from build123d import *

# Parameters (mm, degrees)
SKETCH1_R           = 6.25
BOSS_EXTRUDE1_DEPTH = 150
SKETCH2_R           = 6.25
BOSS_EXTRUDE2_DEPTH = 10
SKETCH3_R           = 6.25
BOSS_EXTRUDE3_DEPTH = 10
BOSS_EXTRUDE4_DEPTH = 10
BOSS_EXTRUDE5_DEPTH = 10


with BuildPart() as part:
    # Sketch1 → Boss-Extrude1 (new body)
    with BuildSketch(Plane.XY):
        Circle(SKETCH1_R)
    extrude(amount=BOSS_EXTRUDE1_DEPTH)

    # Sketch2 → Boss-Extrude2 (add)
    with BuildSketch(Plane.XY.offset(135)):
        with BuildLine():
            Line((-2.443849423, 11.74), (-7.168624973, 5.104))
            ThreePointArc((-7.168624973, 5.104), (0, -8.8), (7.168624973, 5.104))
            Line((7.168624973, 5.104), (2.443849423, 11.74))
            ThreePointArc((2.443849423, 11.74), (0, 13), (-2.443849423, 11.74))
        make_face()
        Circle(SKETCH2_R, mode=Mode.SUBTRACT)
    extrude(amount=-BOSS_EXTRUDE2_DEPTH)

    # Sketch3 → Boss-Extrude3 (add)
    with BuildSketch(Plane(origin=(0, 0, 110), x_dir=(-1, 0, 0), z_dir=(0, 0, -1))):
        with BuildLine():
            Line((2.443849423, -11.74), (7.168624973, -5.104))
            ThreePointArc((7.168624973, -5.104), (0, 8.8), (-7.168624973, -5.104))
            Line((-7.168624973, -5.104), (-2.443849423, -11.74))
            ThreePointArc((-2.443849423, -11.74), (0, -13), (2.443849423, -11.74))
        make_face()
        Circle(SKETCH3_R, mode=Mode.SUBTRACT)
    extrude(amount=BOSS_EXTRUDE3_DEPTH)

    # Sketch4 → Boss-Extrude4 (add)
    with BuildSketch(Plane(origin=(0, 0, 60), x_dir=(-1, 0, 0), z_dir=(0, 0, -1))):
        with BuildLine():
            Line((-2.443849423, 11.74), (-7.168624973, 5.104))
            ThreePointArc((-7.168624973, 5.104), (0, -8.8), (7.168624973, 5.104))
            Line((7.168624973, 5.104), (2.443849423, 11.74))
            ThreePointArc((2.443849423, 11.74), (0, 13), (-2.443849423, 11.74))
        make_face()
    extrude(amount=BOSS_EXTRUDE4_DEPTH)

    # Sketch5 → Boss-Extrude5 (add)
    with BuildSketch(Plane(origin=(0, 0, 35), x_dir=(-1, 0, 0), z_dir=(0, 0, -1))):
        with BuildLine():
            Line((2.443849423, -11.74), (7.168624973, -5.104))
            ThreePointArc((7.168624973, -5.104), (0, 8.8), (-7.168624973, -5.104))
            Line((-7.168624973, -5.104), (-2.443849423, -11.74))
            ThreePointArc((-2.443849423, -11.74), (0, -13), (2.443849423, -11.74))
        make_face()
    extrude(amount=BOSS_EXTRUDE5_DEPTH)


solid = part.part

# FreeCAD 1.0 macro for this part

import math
import FreeCAD as App
import Part
import Sketcher

V = App.Vector

doc = App.newDocument("Part")
params = doc.addObject("Spreadsheet::Sheet", "Params")
for row, (alias, value) in enumerate([
    ("sketch1_diameter", "12.5 mm"),
    ("pad1_length", "150 mm"),
    ("sketch2_radius", "3 mm"),
    ("sketch2_diameter", "12.5 mm"),
    ("sketch2_radius2", "8.8 mm"),
    ("pad2_length", "10 mm"),
    ("sketch3_radius", "3 mm"),
    ("sketch3_diameter", "12.5 mm"),
    ("sketch3_radius2", "8.8 mm"),
    ("pad3_length", "10 mm"),
    ("sketch4_radius", "3 mm"),
    ("sketch4_radius2", "8.8 mm"),
    ("pad4_length", "10 mm"),
    ("sketch5_radius", "3 mm"),
    ("sketch5_radius2", "8.8 mm"),
    ("pad5_length", "10 mm"),
], start=1):
    params.set(f"A{row}", alias)
    params.set(f"B{row}", "=" + value)
    params.setAlias(f"B{row}", alias)

body = doc.addObject("PartDesign::Body", "Body")

# Sketch on XY plane
sketch1 = doc.addObject("Sketcher::SketchObject", "Sketch")
body.addObject(sketch1)
sketch1.AttachmentSupport = (doc.XY_Plane, [""])
sketch1.MapMode = "FlatFace"
sketch1.addGeometry(Part.Circle(V(0, 0, 0), V(0, 0, 1), 6), False)
sketch1.addConstraint([
    Sketcher.Constraint("Coincident", 0, 3, -1, 1),
    Sketcher.Constraint("Diameter", 0, 12.5),
])
sketch1.setExpression("Constraints[1]", "Params.sketch1_diameter")
pad1 = doc.addObject("PartDesign::Pad", "Pad")
body.addObject(pad1)
pad1.Profile = sketch1
pad1.setExpression("Length", "Params.pad1_length")

# Sketch on XY plane
sketch2 = doc.addObject("Sketcher::SketchObject", "Sketch001")
body.addObject(sketch2)
sketch2.AttachmentSupport = (doc.XY_Plane, [""])
sketch2.MapMode = "FlatFace"
sketch2.AttachmentOffset = App.Placement(V(0, 0, 135), App.Rotation())
sketch2.addGeometry([
    Part.LineSegment(V(-2.4, 11.7, 0), V(-7.2, 5.1, 0)),  # 0
    Part.ArcOfCircle(Part.Circle(V(0, 0, 0), V(0, 0, 1), 8.8), math.radians(145), math.radians(395)),  # 1
    Part.LineSegment(V(7.2, 5.1, 0), V(2.4, 11.7, 0)),  # 2
    Part.ArcOfCircle(Part.Circle(V(0, 10, 0), V(0, 0, 1), 3), math.radians(35), math.radians(145)),  # 3
    Part.Circle(V(0, 0, 0), V(0, 0, 1), 6.2),  # 4
], False)
sketch2.addConstraint([
    Sketcher.Constraint("Tangent", 0, 2, 1, 1),
    Sketcher.Constraint("Tangent", 1, 2, 2, 1),
    Sketcher.Constraint("Tangent", 2, 2, 3, 1),
    Sketcher.Constraint("Tangent", 3, 2, 0, 1),
    Sketcher.Constraint("Coincident", 1, 3, -1, 1),
    Sketcher.Constraint("Coincident", 4, 3, -1, 1),
    Sketcher.Constraint("PointOnObject", 3, 3, -2),
    Sketcher.Constraint("Radius", 3, 3.0),
    Sketcher.Constraint("Diameter", 4, 12.5),
    Sketcher.Constraint("Radius", 1, 8.8),
    Sketcher.Constraint("DistanceY", -1, 1, 3, 3, 10.0),
])
sketch2.setExpression("Constraints[7]", "Params.sketch2_radius")
sketch2.setExpression("Constraints[8]", "Params.sketch2_diameter")
sketch2.setExpression("Constraints[9]", "Params.sketch2_radius2")
pad2 = doc.addObject("PartDesign::Pad", "Pad001")
body.addObject(pad2)
pad2.Profile = sketch2
pad2.setExpression("Length", "Params.pad2_length")
pad2.Reversed = True

# Sketch on XY plane
sketch3 = doc.addObject("Sketcher::SketchObject", "Sketch002")
body.addObject(sketch3)
sketch3.AttachmentSupport = (doc.XY_Plane, [""])
sketch3.MapMode = "FlatFace"
sketch3.AttachmentOffset = App.Placement(V(0, 0, 110), App.Rotation())
sketch3.addGeometry([
    Part.LineSegment(V(-2.4, -11.7, 0), V(-7.2, -5.1, 0)),  # 0
    Part.ArcOfCircle(Part.Circle(V(0, 0, 0), V(0, 0, 1), 8.8), math.radians(-35), math.radians(215)),  # 1
    Part.LineSegment(V(7.2, -5.1, 0), V(2.4, -11.7, 0)),  # 2
    Part.ArcOfCircle(Part.Circle(V(0, -10, 0), V(0, 0, 1), 3), math.radians(-145), math.radians(-35)),  # 3
    Part.Circle(V(0, 0, 0), V(0, 0, 1), 6.2),  # 4
], False)
sketch3.addConstraint([
    Sketcher.Constraint("Tangent", 0, 2, 1, 2),
    Sketcher.Constraint("Tangent", 1, 1, 2, 1),
    Sketcher.Constraint("Tangent", 2, 2, 3, 2),
    Sketcher.Constraint("Tangent", 3, 1, 0, 1),
    Sketcher.Constraint("Coincident", 1, 3, -1, 1),
    Sketcher.Constraint("Coincident", 4, 3, -1, 1),
    Sketcher.Constraint("PointOnObject", 3, 3, -2),
    Sketcher.Constraint("Radius", 3, 3.0),
    Sketcher.Constraint("Diameter", 4, 12.5),
    Sketcher.Constraint("Radius", 1, 8.8),
    Sketcher.Constraint("DistanceY", 3, 3, -1, 1, 10.0),
])
sketch3.setExpression("Constraints[7]", "Params.sketch3_radius")
sketch3.setExpression("Constraints[8]", "Params.sketch3_diameter")
sketch3.setExpression("Constraints[9]", "Params.sketch3_radius2")
pad3 = doc.addObject("PartDesign::Pad", "Pad002")
body.addObject(pad3)
pad3.Profile = sketch3
pad3.setExpression("Length", "Params.pad3_length")
pad3.Reversed = True

# Sketch on XY plane
sketch4 = doc.addObject("Sketcher::SketchObject", "Sketch003")
body.addObject(sketch4)
sketch4.AttachmentSupport = (doc.XY_Plane, [""])
sketch4.MapMode = "FlatFace"
sketch4.AttachmentOffset = App.Placement(V(0, 0, 60), App.Rotation())
sketch4.addGeometry([
    Part.LineSegment(V(2.4, 11.7, 0), V(7.2, 5.1, 0)),
    Part.ArcOfCircle(Part.Circle(V(0, 0, 0), V(0, 0, 1), 8.8), math.radians(145), math.radians(395)),
    Part.LineSegment(V(-7.2, 5.1, 0), V(-2.4, 11.7, 0)),
    Part.ArcOfCircle(Part.Circle(V(0, 10, 0), V(0, 0, 1), 3), math.radians(35), math.radians(145)),
], False)
sketch4.addConstraint([
    Sketcher.Constraint("Tangent", 0, 2, 1, 2),
    Sketcher.Constraint("Tangent", 1, 1, 2, 1),
    Sketcher.Constraint("Tangent", 2, 2, 3, 2),
    Sketcher.Constraint("Tangent", 3, 1, 0, 1),
    Sketcher.Constraint("Coincident", 1, 3, -1, 1),
    Sketcher.Constraint("PointOnObject", 3, 3, -2),
    Sketcher.Constraint("Radius", 3, 3.0),
    Sketcher.Constraint("Radius", 1, 8.8),
    Sketcher.Constraint("DistanceY", -1, 1, 3, 3, 10.0),
])
sketch4.setExpression("Constraints[6]", "Params.sketch4_radius")
sketch4.setExpression("Constraints[7]", "Params.sketch4_radius2")
pad4 = doc.addObject("PartDesign::Pad", "Pad003")
body.addObject(pad4)
pad4.Profile = sketch4
pad4.setExpression("Length", "Params.pad4_length")
pad4.Reversed = True

# Sketch on XY plane
sketch5 = doc.addObject("Sketcher::SketchObject", "Sketch004")
body.addObject(sketch5)
sketch5.AttachmentSupport = (doc.XY_Plane, [""])
sketch5.MapMode = "FlatFace"
sketch5.AttachmentOffset = App.Placement(V(0, 0, 35), App.Rotation())
sketch5.addGeometry([
    Part.LineSegment(V(-2.4, -11.7, 0), V(-7.2, -5.1, 0)),
    Part.ArcOfCircle(Part.Circle(V(0, 0, 0), V(0, 0, 1), 8.8), math.radians(-35), math.radians(215)),
    Part.LineSegment(V(7.2, -5.1, 0), V(2.4, -11.7, 0)),
    Part.ArcOfCircle(Part.Circle(V(0, -10, 0), V(0, 0, 1), 3), math.radians(-145), math.radians(-35)),
], False)
sketch5.addConstraint([
    Sketcher.Constraint("Tangent", 0, 2, 1, 2),
    Sketcher.Constraint("Tangent", 1, 1, 2, 1),
    Sketcher.Constraint("Tangent", 2, 2, 3, 2),
    Sketcher.Constraint("Tangent", 3, 1, 0, 1),
    Sketcher.Constraint("Coincident", 1, 3, -1, 1),
    Sketcher.Constraint("PointOnObject", 3, 3, -2),
    Sketcher.Constraint("Radius", 3, 3.0),
    Sketcher.Constraint("Radius", 1, 8.8),
    Sketcher.Constraint("DistanceY", 3, 3, -1, 1, 10.0),
])
sketch5.setExpression("Constraints[6]", "Params.sketch5_radius")
sketch5.setExpression("Constraints[7]", "Params.sketch5_radius2")
pad5 = doc.addObject("PartDesign::Pad", "Pad004")
body.addObject(pad5)
pad5.Profile = sketch5
pad5.setExpression("Length", "Params.pad5_length")
pad5.Reversed = True

doc.recompute()
